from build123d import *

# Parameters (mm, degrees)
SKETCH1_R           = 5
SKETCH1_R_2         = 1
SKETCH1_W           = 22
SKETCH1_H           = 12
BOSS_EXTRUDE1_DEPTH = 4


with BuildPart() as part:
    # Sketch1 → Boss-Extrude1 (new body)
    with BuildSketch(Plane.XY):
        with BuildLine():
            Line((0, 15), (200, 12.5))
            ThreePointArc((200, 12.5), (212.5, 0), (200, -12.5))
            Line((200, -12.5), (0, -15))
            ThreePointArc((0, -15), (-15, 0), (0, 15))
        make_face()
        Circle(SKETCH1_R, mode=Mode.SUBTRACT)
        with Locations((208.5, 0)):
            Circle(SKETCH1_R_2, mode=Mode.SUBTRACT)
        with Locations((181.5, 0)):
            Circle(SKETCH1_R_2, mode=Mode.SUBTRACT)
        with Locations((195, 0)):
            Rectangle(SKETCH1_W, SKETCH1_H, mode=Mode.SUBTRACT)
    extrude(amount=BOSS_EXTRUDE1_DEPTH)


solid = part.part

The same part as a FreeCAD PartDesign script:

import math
import FreeCAD as App
import Part
import Sketcher


def add_polygon(sketch, points):
    """Adds a closed chain of lines whose ends are joined by coincident constraints."""
    first, n = sketch.GeometryCount, len(points)
    for a, b in zip(points, points[1:] + points[:1]):
        sketch.addGeometry(Part.LineSegment(App.Vector(*a, 0), App.Vector(*b, 0)), False)
    for i in range(n):
        sketch.addConstraint(Sketcher.Constraint("Coincident", first + i, 2, first + (i + 1) % n, 1))

doc = App.newDocument("Part")
body = doc.addObject("PartDesign::Body", "Body")

sketch1 = body.newObject("Sketcher::SketchObject", "Sketch")
sketch1.AttachmentSupport = (doc.getObject("XY_Plane"), [""])
sketch1.MapMode = "FlatFace"
sketch1.addGeometry(Part.LineSegment(App.Vector(200, 12.5, 0), App.Vector(0, 15, 0)), False)
sketch1.addGeometry(Part.ArcOfCircle(Part.Circle(App.Vector(0, 0, 0), App.Vector(0, 0, 1), 15), math.radians(90), math.radians(270)), False)
sketch1.addGeometry(Part.LineSegment(App.Vector(0, -15, 0), App.Vector(200, -12.5, 0)), False)
sketch1.addGeometry(Part.ArcOfCircle(Part.Circle(App.Vector(200, 0, 0), App.Vector(0, 0, 1), 12.5), math.radians(-90), math.radians(90)), False)
sketch1.addGeometry(Part.Circle(App.Vector(208.5, 0, 0), App.Vector(0, 0, 1), 1), False)
add_polygon(sketch1, [(184, -6), (184, 6), (206, 6), (206, -6)])
sketch1.addGeometry(Part.Circle(App.Vector(181.5, 0, 0), App.Vector(0, 0, 1), 1), False)
sketch1.addGeometry(Part.Circle(App.Vector(0, 0, 0), App.Vector(0, 0, 1), 5), False)
sketch1.addConstraint([
    Sketcher.Constraint("Coincident", 0, 2, 1, 1),
    Sketcher.Constraint("Coincident", 1, 2, 2, 1),
    Sketcher.Constraint("Coincident", 2, 2, 3, 1),
    Sketcher.Constraint("Coincident", 3, 2, 0, 1),
    Sketcher.Constraint("Vertical", 5),
    Sketcher.Constraint("Horizontal", 6),
    Sketcher.Constraint("Vertical", 7),
    Sketcher.Constraint("Horizontal", 8),
    Sketcher.Constraint("Coincident", 1, 3, -1, 1),
    Sketcher.Constraint("Coincident", 10, 3, -1, 1),
    Sketcher.Constraint("Equal", 4, 9),
    Sketcher.Constraint("Symmetric", 2, 2, 3, 2, -1),
    Sketcher.Constraint("PointOnObject", 4, 3, -1),
    Sketcher.Constraint("PointOnObject", 9, 3, -1),
    Sketcher.Constraint("PointOnObject", 0, 2, -2),
    Sketcher.Constraint("PointOnObject", 1, 2, -2),
    Sketcher.Constraint("Vertical", 3, 3, 2, 2),
    Sketcher.Constraint("Diameter", 4, 2.0),
    Sketcher.Constraint("Diameter", 10, 10.0),
    Sketcher.Constraint("Radius", 1, 15.0),
    Sketcher.Constraint("Radius", 3, 12.5),
    Sketcher.Constraint("DistanceX", 6, 1, 6, 2, 22.0),
    Sketcher.Constraint("DistanceY", 5, 1, 5, 2, 12.0),
    Sketcher.Constraint("DistanceX", -1, 1, 3, 3, 200.0),
    Sketcher.Constraint("DistanceX", -1, 1, 5, 2, 184.0),
    Sketcher.Constraint("DistanceY", -1, 1, 5, 2, 6.0),
    Sketcher.Constraint("DistanceX", 9, 3, 4, 3, 27.0),
    Sketcher.Constraint("DistanceX", -1, 1, 4, 3, 208.5),
])
pad1 = body.newObject("PartDesign::Pad", "Pad")
pad1.Profile = sketch1
pad1.Length = 4

doc.recompute()
